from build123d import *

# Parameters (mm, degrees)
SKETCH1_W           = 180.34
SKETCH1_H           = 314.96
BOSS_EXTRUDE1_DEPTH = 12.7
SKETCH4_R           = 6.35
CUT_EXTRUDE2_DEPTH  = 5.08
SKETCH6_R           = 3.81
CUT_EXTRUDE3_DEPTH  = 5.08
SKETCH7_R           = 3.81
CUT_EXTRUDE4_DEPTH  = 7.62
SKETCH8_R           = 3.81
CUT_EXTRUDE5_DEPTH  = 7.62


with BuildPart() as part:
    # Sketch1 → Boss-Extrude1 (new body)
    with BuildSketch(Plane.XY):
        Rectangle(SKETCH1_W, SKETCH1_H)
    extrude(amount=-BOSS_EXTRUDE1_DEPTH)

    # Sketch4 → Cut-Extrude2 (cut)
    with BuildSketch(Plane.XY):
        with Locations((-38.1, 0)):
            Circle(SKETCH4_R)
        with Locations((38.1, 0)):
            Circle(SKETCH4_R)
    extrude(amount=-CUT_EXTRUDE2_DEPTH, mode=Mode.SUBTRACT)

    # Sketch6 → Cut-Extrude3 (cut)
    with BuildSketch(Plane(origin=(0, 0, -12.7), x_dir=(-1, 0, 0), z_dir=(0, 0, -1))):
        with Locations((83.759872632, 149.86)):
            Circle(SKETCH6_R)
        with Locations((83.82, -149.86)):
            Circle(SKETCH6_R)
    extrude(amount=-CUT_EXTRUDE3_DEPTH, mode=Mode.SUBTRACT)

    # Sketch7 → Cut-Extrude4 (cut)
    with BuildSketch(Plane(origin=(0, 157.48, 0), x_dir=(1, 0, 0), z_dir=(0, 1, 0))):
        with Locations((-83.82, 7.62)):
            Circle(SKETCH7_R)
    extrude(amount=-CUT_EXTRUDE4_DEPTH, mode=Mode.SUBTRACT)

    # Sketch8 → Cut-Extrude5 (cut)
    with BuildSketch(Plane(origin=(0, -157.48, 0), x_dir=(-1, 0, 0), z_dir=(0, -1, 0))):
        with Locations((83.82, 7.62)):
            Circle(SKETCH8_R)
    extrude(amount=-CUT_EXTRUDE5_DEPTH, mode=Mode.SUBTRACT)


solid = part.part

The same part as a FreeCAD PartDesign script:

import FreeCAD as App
import Part
import Sketcher
from FreeCAD import Vector
Q = App.Units.Quantity

doc = App.newDocument("Part")
body = doc.addObject("PartDesign::Body", "Body")

# Sketch on XY plane
sketch1 = doc.addObject("Sketcher::SketchObject", "Sketch")
body.addObject(sketch1)
sketch1.AttachmentSupport = (doc.XY_Plane, [""])
sketch1.MapMode = "FlatFace"
sketch1.addGeometry([
    Part.LineSegment(Vector(-90, 157, 0), Vector(-90, -157, 0)),
    Part.LineSegment(Vector(-90, -157, 0), Vector(90, -157, 0)),
    Part.LineSegment(Vector(90, -157, 0), Vector(90, 157, 0)),
    Part.LineSegment(Vector(90, 157, 0), Vector(-90, 157, 0)),
], False)
sketch1.addConstraint([
    Sketcher.Constraint("Coincident", 0, 2, 1, 1),
    Sketcher.Constraint("Coincident", 1, 2, 2, 1),
    Sketcher.Constraint("Coincident", 2, 2, 3, 1),
    Sketcher.Constraint("Coincident", 3, 2, 0, 1),
    Sketcher.Constraint("Vertical", 0),
    Sketcher.Constraint("Horizontal", 1),
    Sketcher.Constraint("Vertical", 2),
    Sketcher.Constraint("Horizontal", 3),
    Sketcher.Constraint("Symmetric", 0, 2, 2, 2, -1, 1),
    Sketcher.Constraint("DistanceX", 1, 1, 1, 2, Q("7.1 in")),
    Sketcher.Constraint("DistanceY", 0, 2, 0, 1, Q("12.4 in")),
])
pad1 = doc.addObject("PartDesign::Pad", "Pad")
body.addObject(pad1)
pad1.Profile = sketch1
pad1.Length = Q("0.5 in")
pad1.Reversed = True

# Sketch on XY plane
sketch2 = doc.addObject("Sketcher::SketchObject", "Sketch001")
body.addObject(sketch2)
sketch2.AttachmentSupport = (doc.XY_Plane, [""])
sketch2.MapMode = "FlatFace"
sketch2.addGeometry([
    Part.Circle(Vector(-38, 0, 0), Vector(0, 0, 1), 6),
    Part.Circle(Vector(38, 0, 0), Vector(0, 0, 1), 6),
], False)
sketch2.addConstraint([
    Sketcher.Constraint("Equal", 0, 1),
    Sketcher.Constraint("Symmetric", 0, 3, 1, 3, -1, 1),
    Sketcher.Constraint("PointOnObject", 0, 3, -1),
    Sketcher.Constraint("Diameter", 0, Q("0.5 in")),
    Sketcher.Constraint("DistanceX", 0, 3, 1, 3, Q("3 in")),
])
pocket1 = doc.addObject("PartDesign::Pocket", "Pocket")
body.addObject(pocket1)
pocket1.Profile = sketch2
pocket1.Length = Q("0.2 in")

# Sketch on XY plane
sketch3 = doc.addObject("Sketcher::SketchObject", "Sketch002")
body.addObject(sketch3)
sketch3.AttachmentSupport = (doc.XY_Plane, [""])
sketch3.MapMode = "FlatFace"
sketch3.AttachmentOffset = App.Placement(Vector(0, 0, -0.5 * 25.4), App.Rotation())
sketch3.addGeometry([
    Part.Circle(Vector(-83.8, 149.9, 0), Vector(0, 0, 1), 3.8),
    Part.Circle(Vector(-83.8, -149.9, 0), Vector(0, 0, 1), 3.8),
], False)
sketch3.addConstraint([
    Sketcher.Constraint("Equal", 0, 1),
    Sketcher.Constraint("Diameter", 0, Q("0.3 in")),
    Sketcher.Constraint("DistanceY", -1, 1, 0, 3, Q("5.9 in")),
    Sketcher.Constraint("DistanceX", 1, 3, -1, 1, Q("3.3 in")),
    Sketcher.Constraint("DistanceY", 1, 3, -1, 1, Q("5.9 in")),
    Sketcher.Constraint("DistanceX", 0, 3, -1, 1, Q("83.759873 mm")),
])
pocket2 = doc.addObject("PartDesign::Pocket", "Pocket001")
body.addObject(pocket2)
pocket2.Profile = sketch3
pocket2.Length = Q("0.2 in")
pocket2.Reversed = True

# Sketch on XZ plane
sketch4 = doc.addObject("Sketcher::SketchObject", "Sketch003")
body.addObject(sketch4)
sketch4.AttachmentSupport = (doc.XZ_Plane, [""])
sketch4.MapMode = "FlatFace"
sketch4.AttachmentOffset = App.Placement(Vector(0, 0, -6.2 * 25.4), App.Rotation())
sketch4.addGeometry(Part.Circle(Vector(-83.8, -7.6, 0), Vector(0, 0, 1), 3.8), False)
sketch4.addConstraint([
    Sketcher.Constraint("Diameter", 0, Q("0.3 in")),
    Sketcher.Constraint("DistanceX", 0, 3, -1, 1, Q("3.3 in")),
    Sketcher.Constraint("DistanceY", 0, 3, -1, 1, Q("0.3 in")),
])
pocket3 = doc.addObject("PartDesign::Pocket", "Pocket002")
body.addObject(pocket3)
pocket3.Profile = sketch4
pocket3.Length = Q("0.3 in")
pocket3.Reversed = True

# Sketch on XZ plane
sketch5 = doc.addObject("Sketcher::SketchObject", "Sketch004")
body.addObject(sketch5)
sketch5.AttachmentSupport = (doc.XZ_Plane, [""])
sketch5.MapMode = "FlatFace"
sketch5.AttachmentOffset = App.Placement(Vector(0, 0, 6.2 * 25.4), App.Rotation())
sketch5.addGeometry(Part.Circle(Vector(-83.8, -7.6, 0), Vector(0, 0, 1), 3.8), False)
sketch5.addConstraint([
    Sketcher.Constraint("Diameter", 0, Q("0.3 in")),
    Sketcher.Constraint("DistanceX", 0, 3, -1, 1, Q("3.3 in")),
    Sketcher.Constraint("DistanceY", 0, 3, -1, 1, Q("0.3 in")),
])
pocket4 = doc.addObject("PartDesign::Pocket", "Pocket003")
body.addObject(pocket4)
pocket4.Profile = sketch5
pocket4.Length = Q("0.3 in")

doc.recompute()
